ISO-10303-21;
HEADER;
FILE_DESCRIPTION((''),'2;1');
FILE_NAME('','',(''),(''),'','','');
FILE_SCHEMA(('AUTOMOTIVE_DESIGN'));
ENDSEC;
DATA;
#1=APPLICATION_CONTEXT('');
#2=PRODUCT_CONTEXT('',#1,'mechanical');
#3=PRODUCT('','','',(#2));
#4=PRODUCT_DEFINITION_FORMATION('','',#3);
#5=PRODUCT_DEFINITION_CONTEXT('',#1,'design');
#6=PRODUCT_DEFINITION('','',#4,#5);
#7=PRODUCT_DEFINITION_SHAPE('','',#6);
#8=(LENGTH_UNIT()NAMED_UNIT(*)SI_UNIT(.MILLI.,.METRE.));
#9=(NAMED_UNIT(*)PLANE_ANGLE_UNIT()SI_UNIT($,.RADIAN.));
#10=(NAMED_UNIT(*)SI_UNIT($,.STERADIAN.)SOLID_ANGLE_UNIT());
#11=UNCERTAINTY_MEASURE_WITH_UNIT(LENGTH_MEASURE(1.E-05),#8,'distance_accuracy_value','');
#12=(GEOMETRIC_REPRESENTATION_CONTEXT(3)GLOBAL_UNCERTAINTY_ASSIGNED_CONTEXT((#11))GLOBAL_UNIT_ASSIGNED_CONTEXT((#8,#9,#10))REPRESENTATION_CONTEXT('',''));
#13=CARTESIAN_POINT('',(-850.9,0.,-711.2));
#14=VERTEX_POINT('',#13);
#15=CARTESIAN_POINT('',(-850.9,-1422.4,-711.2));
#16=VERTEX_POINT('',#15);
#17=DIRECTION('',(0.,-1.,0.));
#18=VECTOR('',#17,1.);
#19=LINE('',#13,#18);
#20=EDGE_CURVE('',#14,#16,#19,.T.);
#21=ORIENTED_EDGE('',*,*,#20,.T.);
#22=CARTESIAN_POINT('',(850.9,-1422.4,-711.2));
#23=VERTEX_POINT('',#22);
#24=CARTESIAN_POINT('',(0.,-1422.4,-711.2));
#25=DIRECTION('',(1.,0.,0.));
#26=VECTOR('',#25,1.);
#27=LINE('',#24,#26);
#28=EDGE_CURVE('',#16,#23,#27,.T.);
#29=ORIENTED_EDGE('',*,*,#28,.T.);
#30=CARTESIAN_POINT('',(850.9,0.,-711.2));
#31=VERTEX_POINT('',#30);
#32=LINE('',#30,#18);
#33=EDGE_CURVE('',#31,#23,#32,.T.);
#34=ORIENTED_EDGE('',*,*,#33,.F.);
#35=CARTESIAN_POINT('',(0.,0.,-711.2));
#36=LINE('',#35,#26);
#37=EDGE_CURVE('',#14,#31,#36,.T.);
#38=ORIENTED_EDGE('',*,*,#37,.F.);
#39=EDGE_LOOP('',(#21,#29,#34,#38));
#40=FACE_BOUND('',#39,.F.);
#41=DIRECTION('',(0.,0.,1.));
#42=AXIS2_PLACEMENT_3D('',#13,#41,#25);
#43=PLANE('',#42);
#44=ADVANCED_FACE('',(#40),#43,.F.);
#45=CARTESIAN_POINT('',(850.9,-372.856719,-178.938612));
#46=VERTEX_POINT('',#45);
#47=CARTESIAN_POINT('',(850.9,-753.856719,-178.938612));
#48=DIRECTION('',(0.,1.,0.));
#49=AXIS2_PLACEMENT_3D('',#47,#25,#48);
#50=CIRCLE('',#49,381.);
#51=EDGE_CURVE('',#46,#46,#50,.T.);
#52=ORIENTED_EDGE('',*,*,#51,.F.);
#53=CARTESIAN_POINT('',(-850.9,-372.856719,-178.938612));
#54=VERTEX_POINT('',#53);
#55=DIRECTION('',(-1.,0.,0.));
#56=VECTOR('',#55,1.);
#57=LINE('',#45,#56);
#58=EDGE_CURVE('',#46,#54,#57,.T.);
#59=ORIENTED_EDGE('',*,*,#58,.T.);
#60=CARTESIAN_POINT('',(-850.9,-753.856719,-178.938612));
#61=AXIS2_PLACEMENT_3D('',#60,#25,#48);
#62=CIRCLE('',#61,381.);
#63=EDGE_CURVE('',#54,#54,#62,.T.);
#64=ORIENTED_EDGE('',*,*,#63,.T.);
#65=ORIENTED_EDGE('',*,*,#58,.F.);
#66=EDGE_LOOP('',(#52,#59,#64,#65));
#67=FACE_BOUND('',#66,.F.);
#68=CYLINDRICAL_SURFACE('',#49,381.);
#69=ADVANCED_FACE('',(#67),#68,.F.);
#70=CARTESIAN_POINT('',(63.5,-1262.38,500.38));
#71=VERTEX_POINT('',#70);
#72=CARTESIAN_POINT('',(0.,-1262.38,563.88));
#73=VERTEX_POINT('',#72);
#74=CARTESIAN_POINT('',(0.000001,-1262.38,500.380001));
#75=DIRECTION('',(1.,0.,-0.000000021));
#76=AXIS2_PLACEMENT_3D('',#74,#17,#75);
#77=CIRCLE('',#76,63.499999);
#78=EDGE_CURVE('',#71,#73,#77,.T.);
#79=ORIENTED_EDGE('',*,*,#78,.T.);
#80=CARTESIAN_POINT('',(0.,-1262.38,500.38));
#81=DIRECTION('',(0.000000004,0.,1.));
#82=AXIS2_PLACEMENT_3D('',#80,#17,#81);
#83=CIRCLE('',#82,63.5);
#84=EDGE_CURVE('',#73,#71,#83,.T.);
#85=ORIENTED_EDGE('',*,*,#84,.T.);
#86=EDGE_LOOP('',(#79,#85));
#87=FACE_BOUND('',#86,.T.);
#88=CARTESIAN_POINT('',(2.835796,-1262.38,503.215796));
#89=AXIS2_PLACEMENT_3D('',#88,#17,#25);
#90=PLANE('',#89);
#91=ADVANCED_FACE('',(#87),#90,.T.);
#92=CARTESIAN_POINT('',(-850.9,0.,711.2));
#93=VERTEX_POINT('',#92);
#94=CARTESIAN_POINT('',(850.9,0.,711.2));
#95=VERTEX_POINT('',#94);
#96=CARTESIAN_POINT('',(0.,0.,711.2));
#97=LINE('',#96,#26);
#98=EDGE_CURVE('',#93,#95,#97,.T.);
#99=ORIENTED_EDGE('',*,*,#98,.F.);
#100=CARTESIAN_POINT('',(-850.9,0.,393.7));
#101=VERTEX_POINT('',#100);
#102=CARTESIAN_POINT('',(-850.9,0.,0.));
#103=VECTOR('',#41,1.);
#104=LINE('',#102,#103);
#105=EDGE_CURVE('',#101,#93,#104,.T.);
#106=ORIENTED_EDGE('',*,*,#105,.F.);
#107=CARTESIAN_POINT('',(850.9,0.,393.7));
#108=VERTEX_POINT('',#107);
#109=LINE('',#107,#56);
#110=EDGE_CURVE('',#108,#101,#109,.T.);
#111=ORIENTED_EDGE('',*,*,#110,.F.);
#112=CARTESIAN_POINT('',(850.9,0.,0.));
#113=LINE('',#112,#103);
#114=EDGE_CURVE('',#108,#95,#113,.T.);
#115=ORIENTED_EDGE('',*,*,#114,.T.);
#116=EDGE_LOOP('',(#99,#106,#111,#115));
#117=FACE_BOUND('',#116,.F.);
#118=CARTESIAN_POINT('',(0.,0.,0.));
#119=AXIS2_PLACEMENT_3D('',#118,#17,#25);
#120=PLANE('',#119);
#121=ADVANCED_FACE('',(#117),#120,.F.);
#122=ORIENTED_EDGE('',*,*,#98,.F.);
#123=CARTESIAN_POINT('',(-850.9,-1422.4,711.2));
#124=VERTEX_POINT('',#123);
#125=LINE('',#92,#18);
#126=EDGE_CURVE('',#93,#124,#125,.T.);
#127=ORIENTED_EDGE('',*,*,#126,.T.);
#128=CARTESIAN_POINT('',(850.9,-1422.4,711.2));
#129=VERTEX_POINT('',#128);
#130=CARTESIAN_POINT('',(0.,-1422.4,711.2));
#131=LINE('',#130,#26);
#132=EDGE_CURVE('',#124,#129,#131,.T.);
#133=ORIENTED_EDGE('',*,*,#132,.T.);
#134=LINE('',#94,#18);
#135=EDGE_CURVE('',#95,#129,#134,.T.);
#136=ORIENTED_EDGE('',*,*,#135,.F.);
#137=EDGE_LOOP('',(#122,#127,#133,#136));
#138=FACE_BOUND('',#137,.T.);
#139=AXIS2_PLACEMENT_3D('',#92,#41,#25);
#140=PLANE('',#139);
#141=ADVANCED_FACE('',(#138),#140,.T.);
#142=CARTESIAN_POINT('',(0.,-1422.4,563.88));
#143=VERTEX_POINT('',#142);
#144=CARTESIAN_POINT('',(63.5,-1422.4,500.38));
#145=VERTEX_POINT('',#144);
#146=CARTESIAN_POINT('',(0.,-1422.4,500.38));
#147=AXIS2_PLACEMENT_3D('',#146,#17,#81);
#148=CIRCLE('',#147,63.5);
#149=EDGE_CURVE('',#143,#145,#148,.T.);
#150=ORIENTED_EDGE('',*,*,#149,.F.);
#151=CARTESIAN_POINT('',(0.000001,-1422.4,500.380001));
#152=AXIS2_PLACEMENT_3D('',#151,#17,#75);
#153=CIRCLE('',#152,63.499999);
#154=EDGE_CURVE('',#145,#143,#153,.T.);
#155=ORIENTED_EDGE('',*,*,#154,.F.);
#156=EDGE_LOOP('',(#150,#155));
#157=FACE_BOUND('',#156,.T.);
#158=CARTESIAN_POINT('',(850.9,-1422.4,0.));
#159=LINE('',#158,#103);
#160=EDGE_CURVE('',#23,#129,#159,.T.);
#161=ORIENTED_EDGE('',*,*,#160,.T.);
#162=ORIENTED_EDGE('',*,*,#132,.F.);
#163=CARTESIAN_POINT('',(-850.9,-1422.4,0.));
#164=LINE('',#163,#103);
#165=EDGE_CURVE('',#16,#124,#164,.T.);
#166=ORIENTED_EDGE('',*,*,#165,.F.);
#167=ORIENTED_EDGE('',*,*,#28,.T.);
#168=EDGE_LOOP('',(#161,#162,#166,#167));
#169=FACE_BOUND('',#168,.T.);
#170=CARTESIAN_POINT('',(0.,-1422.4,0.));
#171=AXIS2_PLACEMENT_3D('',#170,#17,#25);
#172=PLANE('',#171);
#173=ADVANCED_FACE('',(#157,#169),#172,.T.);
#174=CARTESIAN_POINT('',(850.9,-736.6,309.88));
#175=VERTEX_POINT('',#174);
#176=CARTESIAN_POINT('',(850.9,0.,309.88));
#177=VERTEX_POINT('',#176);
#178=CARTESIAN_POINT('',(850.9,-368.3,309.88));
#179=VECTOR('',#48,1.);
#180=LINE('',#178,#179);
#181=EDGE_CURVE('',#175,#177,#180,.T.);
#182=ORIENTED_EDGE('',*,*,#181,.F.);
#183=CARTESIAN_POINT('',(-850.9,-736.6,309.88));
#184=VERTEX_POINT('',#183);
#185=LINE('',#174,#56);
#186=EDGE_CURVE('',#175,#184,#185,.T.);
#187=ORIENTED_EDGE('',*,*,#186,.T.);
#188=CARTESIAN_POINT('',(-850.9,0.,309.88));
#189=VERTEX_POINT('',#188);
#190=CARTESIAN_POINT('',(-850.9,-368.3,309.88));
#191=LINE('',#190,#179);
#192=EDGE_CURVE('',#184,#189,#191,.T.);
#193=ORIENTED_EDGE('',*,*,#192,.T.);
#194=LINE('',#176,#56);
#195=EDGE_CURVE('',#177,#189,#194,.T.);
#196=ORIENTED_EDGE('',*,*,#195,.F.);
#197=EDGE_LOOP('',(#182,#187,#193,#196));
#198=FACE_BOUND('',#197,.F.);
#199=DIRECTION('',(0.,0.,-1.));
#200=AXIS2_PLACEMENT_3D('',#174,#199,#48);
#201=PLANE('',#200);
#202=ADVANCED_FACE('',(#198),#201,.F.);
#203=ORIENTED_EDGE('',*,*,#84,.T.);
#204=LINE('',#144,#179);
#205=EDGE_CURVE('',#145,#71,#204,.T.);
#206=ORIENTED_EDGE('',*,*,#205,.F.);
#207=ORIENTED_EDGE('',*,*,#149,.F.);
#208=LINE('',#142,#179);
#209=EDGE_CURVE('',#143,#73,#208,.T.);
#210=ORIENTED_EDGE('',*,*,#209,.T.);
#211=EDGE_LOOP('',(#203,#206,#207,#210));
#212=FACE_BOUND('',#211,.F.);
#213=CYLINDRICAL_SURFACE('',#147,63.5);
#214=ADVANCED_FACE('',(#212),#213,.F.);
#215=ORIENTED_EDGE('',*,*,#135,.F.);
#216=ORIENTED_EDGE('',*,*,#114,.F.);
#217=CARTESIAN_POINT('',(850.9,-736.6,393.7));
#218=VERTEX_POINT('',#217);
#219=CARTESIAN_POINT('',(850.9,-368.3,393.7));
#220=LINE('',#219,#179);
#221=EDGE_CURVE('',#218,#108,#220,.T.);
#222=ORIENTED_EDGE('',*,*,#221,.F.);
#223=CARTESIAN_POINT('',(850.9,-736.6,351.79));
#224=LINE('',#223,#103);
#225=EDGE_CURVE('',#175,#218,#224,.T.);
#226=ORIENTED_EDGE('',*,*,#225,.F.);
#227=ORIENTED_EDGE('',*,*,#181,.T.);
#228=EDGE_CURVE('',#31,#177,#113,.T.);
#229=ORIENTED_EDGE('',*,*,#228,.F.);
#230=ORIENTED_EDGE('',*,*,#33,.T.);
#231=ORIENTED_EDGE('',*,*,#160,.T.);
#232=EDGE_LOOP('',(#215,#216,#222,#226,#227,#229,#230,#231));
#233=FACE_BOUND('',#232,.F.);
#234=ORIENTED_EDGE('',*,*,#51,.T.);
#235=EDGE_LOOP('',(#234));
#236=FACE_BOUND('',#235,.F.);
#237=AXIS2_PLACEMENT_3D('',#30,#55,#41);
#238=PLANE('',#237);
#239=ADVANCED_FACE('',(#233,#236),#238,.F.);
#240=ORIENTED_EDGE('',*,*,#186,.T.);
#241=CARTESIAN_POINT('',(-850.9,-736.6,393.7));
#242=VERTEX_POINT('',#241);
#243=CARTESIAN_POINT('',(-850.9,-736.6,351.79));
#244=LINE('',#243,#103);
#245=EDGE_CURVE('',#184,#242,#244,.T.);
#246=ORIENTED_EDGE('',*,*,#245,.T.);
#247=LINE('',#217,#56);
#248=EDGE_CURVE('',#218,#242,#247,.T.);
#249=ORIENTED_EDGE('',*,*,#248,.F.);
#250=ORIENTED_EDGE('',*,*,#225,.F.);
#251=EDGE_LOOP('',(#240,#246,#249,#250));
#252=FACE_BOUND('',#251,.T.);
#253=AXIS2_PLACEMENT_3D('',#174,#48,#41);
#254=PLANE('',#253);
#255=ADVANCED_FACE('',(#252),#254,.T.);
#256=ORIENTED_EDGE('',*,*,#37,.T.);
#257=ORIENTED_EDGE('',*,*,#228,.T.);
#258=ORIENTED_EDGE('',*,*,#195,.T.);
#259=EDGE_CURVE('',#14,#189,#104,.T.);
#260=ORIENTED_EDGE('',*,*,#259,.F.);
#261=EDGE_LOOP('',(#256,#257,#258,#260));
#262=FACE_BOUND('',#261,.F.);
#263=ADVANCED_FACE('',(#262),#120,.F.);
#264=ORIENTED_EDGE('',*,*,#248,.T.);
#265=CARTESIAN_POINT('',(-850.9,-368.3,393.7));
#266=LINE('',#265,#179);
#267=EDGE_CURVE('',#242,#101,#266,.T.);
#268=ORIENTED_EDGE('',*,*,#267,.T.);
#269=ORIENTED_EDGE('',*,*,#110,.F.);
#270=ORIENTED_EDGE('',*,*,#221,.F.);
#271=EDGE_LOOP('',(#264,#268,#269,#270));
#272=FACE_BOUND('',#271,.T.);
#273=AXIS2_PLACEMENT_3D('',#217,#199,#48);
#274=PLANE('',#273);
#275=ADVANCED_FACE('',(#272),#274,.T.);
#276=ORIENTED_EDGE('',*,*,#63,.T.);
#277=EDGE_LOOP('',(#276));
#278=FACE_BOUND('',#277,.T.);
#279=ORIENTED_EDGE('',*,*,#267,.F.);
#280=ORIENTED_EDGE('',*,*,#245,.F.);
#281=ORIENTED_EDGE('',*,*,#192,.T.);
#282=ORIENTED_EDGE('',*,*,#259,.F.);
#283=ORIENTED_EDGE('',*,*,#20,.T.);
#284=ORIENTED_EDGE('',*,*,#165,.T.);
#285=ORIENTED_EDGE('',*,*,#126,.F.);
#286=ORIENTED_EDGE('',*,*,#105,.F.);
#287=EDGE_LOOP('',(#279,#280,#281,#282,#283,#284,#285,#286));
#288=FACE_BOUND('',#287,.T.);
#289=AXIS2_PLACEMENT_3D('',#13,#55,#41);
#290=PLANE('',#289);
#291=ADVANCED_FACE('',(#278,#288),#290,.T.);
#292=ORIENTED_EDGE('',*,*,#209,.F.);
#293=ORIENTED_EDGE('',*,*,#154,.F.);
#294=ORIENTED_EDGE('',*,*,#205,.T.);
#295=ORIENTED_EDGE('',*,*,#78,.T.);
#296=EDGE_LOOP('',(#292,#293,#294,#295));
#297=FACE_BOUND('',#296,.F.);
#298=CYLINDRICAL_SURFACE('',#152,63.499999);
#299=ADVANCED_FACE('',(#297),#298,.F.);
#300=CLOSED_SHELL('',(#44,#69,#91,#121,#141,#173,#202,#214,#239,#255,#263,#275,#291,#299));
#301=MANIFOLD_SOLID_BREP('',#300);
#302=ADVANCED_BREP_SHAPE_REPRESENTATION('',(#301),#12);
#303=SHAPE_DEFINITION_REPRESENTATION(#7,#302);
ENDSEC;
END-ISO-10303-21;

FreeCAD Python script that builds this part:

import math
import FreeCAD as App
import Part
import Sketcher
from FreeCAD import Vector
Q = App.Units.Quantity

doc = App.newDocument("Part")
body = doc.addObject("PartDesign::Body", "Body")

sketch1 = body.newObject("Sketcher::SketchObject", "Sketch")
sketch1.AttachmentSupport = (doc.getObject("XZ_Plane"), [""])
sketch1.MapMode = "FlatFace"
sketch1.addGeometry([
    Part.LineSegment(Vector(-851, 711, 0), Vector(-851, -711, 0)),
    Part.LineSegment(Vector(-851, -711, 0), Vector(851, -711, 0)),
    Part.LineSegment(Vector(851, -711, 0), Vector(851, 711, 0)),
    Part.LineSegment(Vector(851, 711, 0), Vector(-851, 711, 0)),
], False)
sketch1.addConstraint([
    Sketcher.Constraint("Coincident", 0, 2, 1, 1),
    Sketcher.Constraint("Coincident", 1, 2, 2, 1),
    Sketcher.Constraint("Coincident", 2, 2, 3, 1),
    Sketcher.Constraint("Coincident", 3, 2, 0, 1),
    Sketcher.Constraint("Vertical", 0),
    Sketcher.Constraint("Horizontal", 1),
    Sketcher.Constraint("Vertical", 2),
    Sketcher.Constraint("Horizontal", 3),
    Sketcher.Constraint("Symmetric", 0, 2, 2, 2, -1, 1),
    Sketcher.Constraint("DistanceX", 1, 1, 1, 2, Q("67 in")),
    Sketcher.Constraint("DistanceY", 0, 2, 0, 1, Q("56 in")),
])
pad1 = body.newObject("PartDesign::Pad", "Pad")
pad1.Profile = sketch1
pad1.Length = Q("56 in")

sketch2 = body.newObject("Sketcher::SketchObject", "Sketch001")
sketch2.AttachmentSupport = (doc.getObject("XZ_Plane"), [""])
sketch2.MapMode = "FlatFace"
sketch2.AttachmentOffset = App.Placement(Vector(0, 0, 56 * 25.4), App.Rotation())
sketch2.addGeometry([
    Part.ArcOfCircle(Part.Circle(Vector(0, 500, 0), Vector(0, 0, 1), 63), math.radians(0), math.radians(90)),
    Part.ArcOfCircle(Part.Circle(Vector(0, 500, 0), Vector(0, 0, 1), 64), math.radians(90), math.radians(360)),
], False)
sketch2.addConstraint([
    Sketcher.Constraint("Tangent", 0, 1, 1, 2),
    Sketcher.Constraint("Coincident", 1, 1, 0, 2),
    Sketcher.Constraint("PointOnObject", 0, 3, -2),
    Sketcher.Constraint("PointOnObject", 1, 1, -2),
    Sketcher.Constraint("Horizontal", 1, 3, 0, 1),
    Sketcher.Constraint("Radius", 0, Q("2.4999999 in")),
    Sketcher.Constraint("DistanceY", -1, 1, 0, 3, Q("19.7000001 in")),
])
pocket1 = body.newObject("PartDesign::Pocket", "Pocket")
pocket1.Profile = sketch2
pocket1.Length = Q("6.3 in")

sketch3 = body.newObject("Sketcher::SketchObject", "Sketch002")
sketch3.AttachmentSupport = (doc.getObject("YZ_Plane"), [""])
sketch3.MapMode = "FlatFace"
sketch3.AttachmentOffset = App.Placement(Vector(0, 0, 33.5 * 25.4), App.Rotation())
sketch3.addGeometry([
    Part.LineSegment(Vector(-737, 394, 0), Vector(-737, 310, 0)),
    Part.LineSegment(Vector(-737, 310, 0), Vector(0, 310, 0)),
    Part.LineSegment(Vector(0, 310, 0), Vector(0, 394, 0)),
    Part.LineSegment(Vector(0, 394, 0), Vector(-737, 394, 0)),
], False)
sketch3.addConstraint([
    Sketcher.Constraint("Coincident", 0, 2, 1, 1),
    Sketcher.Constraint("Coincident", 1, 2, 2, 1),
    Sketcher.Constraint("Coincident", 2, 2, 3, 1),
    Sketcher.Constraint("Coincident", 3, 2, 0, 1),
    Sketcher.Constraint("Vertical", 0),
    Sketcher.Constraint("Horizontal", 1),
    Sketcher.Constraint("Vertical", 2),
    Sketcher.Constraint("Horizontal", 3),
    Sketcher.Constraint("PointOnObject", 1, 2, -2),
    Sketcher.Constraint("DistanceX", 1, 1, 1, 2, Q("29 in")),
    Sketcher.Constraint("DistanceY", 0, 2, 0, 1, Q("3.3 in")),
    Sketcher.Constraint("DistanceY", -1, 1, 0, 2, Q("12.2 in")),
])
pocket2 = body.newObject("PartDesign::Pocket", "Pocket001")
pocket2.Profile = sketch3
pocket2.Length = Q("67 in")

sketch4 = body.newObject("Sketcher::SketchObject", "Sketch003")
sketch4.AttachmentSupport = (doc.getObject("YZ_Plane"), [""])
sketch4.MapMode = "FlatFace"
sketch4.AttachmentOffset = App.Placement(Vector(0, 0, 33.5 * 25.4), App.Rotation())
sketch4.addGeometry(Part.Circle(Vector(-754, -179, 0), Vector(0, 0, 1), 381), False)
sketch4.addConstraint([
    Sketcher.Constraint("Diameter", 0, Q("30 in")),
    Sketcher.Constraint("DistanceX", 0, 3, -1, 1, Q("753.856719 mm")),
    Sketcher.Constraint("DistanceY", 0, 3, -1, 1, Q("178.938612 mm")),
])
pocket3 = body.newObject("PartDesign::Pocket", "Pocket002")
pocket3.Profile = sketch4
pocket3.Length = Q("119.5 in")

doc.recompute()
